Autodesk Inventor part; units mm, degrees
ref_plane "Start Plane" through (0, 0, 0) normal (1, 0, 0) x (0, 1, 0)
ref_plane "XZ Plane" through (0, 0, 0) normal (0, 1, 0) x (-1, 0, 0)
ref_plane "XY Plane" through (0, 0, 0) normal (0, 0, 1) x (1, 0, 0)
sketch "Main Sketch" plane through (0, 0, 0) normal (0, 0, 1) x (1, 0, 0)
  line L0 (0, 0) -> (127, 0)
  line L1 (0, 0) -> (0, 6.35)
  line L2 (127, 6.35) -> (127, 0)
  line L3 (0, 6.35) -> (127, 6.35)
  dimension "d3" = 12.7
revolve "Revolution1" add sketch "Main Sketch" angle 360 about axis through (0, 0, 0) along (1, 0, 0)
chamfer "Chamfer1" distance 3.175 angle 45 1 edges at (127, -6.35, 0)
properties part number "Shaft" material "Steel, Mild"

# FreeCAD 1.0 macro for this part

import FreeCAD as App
import Part
import Sketcher
from FreeCAD import Vector
Q = App.Units.Quantity


def edges_at(feature, points):
    """Names of the edges that pass closest to the given points."""
    edges = feature.Shape.Edges
    near = lambda p: min(range(len(edges)), key=lambda i: edges[i].distToShape(Part.Vertex(*p))[0])
    return sorted({f"Edge{near(p) + 1}" for p in points})

doc = App.newDocument("Part")
body = doc.addObject("PartDesign::Body", "Body")

sketch1 = body.newObject("Sketcher::SketchObject", "Sketch")
sketch1.AttachmentSupport = (doc.getObject("XY_Plane"), [""])
sketch1.MapMode = "FlatFace"
sketch1.addGeometry([
    Part.LineSegment(Vector(0, 6, 0), Vector(0, 0, 0)),
    Part.LineSegment(Vector(0, 0, 0), Vector(127, 0, 0)),
    Part.LineSegment(Vector(127, 0, 0), Vector(127, 6, 0)),
    Part.LineSegment(Vector(127, 6, 0), Vector(0, 6, 0)),
], False)
sketch1.addConstraint([
    Sketcher.Constraint("Coincident", 0, 2, 1, 1),
    Sketcher.Constraint("Coincident", 1, 2, 2, 1),
    Sketcher.Constraint("Coincident", 2, 2, 3, 1),
    Sketcher.Constraint("Coincident", 3, 2, 0, 1),
    Sketcher.Constraint("Vertical", 0),
    Sketcher.Constraint("Horizontal", 1),
    Sketcher.Constraint("Vertical", 2),
    Sketcher.Constraint("Horizontal", 3),
    Sketcher.Constraint("Coincident", 0, 2, -1, 1),
    Sketcher.Constraint("DistanceX", 1, 1, 1, 2, Q("5 in")),
    Sketcher.Constraint("DistanceY", 0, 2, 0, 1, Q("0.25 in")),
])
revolution = body.newObject("PartDesign::Revolution", "Revolution")
revolution.Profile = sketch1
revolution.ReferenceAxis = (sketch1, ["H_Axis"])
revolution.Angle = 360
doc.recompute()

chamfer = body.newObject("PartDesign::Chamfer", "Chamfer")
chamfer.Base = (revolution, edges_at(revolution, [(127, -6.35, 0)]))
chamfer.Size = Q("0.125 in")

doc.recompute()
